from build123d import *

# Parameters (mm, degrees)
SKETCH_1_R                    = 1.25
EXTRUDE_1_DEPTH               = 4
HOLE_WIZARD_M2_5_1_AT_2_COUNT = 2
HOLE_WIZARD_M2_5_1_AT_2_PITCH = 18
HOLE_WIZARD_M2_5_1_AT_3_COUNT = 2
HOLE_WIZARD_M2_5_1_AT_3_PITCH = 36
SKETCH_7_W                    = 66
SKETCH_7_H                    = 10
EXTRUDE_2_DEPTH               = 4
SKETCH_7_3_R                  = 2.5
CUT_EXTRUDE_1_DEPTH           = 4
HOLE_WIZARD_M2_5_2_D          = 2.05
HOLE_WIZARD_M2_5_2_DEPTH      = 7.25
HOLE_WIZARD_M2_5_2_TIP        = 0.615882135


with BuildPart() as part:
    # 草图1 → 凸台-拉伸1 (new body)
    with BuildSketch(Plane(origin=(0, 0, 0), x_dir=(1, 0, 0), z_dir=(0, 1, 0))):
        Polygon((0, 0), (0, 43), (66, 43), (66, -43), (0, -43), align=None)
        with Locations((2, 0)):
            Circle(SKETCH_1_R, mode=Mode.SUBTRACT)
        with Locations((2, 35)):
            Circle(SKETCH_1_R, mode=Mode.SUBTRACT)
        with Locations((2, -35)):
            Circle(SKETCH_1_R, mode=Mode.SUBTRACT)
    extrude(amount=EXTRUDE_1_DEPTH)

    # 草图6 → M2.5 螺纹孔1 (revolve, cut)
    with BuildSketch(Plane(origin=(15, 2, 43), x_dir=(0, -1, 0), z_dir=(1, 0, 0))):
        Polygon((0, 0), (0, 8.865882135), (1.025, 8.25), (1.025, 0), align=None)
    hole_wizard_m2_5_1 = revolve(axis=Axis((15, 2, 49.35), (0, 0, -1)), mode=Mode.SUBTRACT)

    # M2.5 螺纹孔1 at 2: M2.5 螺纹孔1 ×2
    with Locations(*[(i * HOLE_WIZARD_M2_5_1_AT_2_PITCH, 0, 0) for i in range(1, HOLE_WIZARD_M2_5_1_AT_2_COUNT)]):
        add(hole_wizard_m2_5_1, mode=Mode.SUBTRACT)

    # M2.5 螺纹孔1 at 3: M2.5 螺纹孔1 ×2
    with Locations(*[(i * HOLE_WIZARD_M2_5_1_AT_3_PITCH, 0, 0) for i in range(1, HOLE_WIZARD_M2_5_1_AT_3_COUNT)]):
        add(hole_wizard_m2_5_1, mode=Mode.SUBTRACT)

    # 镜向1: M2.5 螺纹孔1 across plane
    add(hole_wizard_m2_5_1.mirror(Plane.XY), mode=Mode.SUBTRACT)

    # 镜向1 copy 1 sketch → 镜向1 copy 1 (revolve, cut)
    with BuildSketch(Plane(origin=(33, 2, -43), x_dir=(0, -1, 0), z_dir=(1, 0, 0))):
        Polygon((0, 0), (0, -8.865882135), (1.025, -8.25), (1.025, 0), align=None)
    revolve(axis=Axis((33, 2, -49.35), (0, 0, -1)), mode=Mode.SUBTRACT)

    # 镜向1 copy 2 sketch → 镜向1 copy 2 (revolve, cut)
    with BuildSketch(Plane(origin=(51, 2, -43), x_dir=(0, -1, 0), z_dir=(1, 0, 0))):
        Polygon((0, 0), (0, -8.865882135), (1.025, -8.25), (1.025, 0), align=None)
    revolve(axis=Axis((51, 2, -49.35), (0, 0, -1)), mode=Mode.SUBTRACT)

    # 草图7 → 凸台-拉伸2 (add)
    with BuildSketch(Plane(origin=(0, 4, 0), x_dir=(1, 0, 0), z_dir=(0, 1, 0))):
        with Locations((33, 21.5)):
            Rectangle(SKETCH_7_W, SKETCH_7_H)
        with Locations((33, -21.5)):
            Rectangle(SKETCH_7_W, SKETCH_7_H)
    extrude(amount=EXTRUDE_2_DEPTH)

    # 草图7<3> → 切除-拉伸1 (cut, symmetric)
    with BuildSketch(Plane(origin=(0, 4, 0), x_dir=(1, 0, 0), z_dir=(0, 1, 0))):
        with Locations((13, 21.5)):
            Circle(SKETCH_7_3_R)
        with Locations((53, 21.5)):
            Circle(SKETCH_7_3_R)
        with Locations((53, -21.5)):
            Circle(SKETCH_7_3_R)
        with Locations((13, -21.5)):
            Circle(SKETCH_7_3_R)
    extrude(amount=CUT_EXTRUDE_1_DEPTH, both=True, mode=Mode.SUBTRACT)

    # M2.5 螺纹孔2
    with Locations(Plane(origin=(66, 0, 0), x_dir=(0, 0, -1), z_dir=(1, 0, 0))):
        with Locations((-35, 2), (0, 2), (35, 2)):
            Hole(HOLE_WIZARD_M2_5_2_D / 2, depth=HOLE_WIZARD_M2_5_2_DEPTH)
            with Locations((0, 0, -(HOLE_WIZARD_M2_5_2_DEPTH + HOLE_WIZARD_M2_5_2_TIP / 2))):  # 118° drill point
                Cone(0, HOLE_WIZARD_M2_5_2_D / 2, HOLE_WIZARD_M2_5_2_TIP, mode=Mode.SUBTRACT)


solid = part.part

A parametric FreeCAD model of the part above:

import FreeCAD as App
import Part
import Sketcher
Q = App.Units.Quantity


def add_polygon(sketch, points):
    """Adds a closed chain of lines whose ends are joined by coincident constraints."""
    first, n = sketch.GeometryCount, len(points)
    for a, b in zip(points, points[1:] + points[:1]):
        sketch.addGeometry(Part.LineSegment(App.Vector(*a, 0), App.Vector(*b, 0)), False)
    for i in range(n):
        sketch.addConstraint(Sketcher.Constraint("Coincident", first + i, 2, first + (i + 1) % n, 1))

doc = App.newDocument("Part")
body = doc.addObject("PartDesign::Body", "Body")

# Sketch on XZ plane
sketch1 = doc.addObject("Sketcher::SketchObject", "Sketch")
body.addObject(sketch1)
sketch1.AttachmentSupport = (doc.XZ_Plane, [""])
sketch1.MapMode = "FlatFace"
add_polygon(sketch1, [(0, -43), (0, 43), (66, 43), (66, -43)])  # lines 0-3
sketch1.addGeometry(Part.Circle(App.Vector(2, 35, 0), App.Vector(0, 0, 1), 1.2), False)  # 4
sketch1.addGeometry(Part.Circle(App.Vector(2, 0, 0), App.Vector(0, 0, 1), 1.2), False)  # 5
sketch1.addGeometry(Part.Circle(App.Vector(2, -35, 0), App.Vector(0, 0, 1), 1.2), False)  # 6
sketch1.addConstraint(Sketcher.Constraint("Vertical", 0))
sketch1.addConstraint(Sketcher.Constraint("Horizontal", 1))
sketch1.addConstraint(Sketcher.Constraint("Vertical", 2))
sketch1.addConstraint(Sketcher.Constraint("Horizontal", 3))
sketch1.addConstraint(Sketcher.Constraint("Equal", 4, 5))
sketch1.addConstraint(Sketcher.Constraint("Equal", 5, 6))
sketch1.addConstraint(Sketcher.Constraint("Symmetric", 0, 2, 3, 2, -1, 1))
sketch1.addConstraint(Sketcher.Constraint("Symmetric", 4, 3, 6, 3, -1))
sketch1.addConstraint(Sketcher.Constraint("PointOnObject", 5, 3, -1))
sketch1.addConstraint(Sketcher.Constraint("Vertical", 4, 3, 5, 3))
sketch1.addConstraint(Sketcher.Constraint("Diameter", 4, Q("2.5 mm")))
sketch1.addConstraint(Sketcher.Constraint("DistanceX", 1, 1, 1, 2, Q("66 mm")))
sketch1.addConstraint(Sketcher.Constraint("DistanceY", 0, 1, 0, 2, Q("86 mm")))
sketch1.addConstraint(Sketcher.Constraint("DistanceX", -1, 1, 4, 3, Q("2 mm")))
sketch1.addConstraint(Sketcher.Constraint("DistanceY", -1, 1, 4, 3, Q("35 mm")))
pad1 = doc.addObject("PartDesign::Pad", "Pad")
body.addObject(pad1)
pad1.Profile = sketch1
pad1.Length = 4
pad1.Reversed = True

# Sketch on YZ plane
sketch2 = doc.addObject("Sketcher::SketchObject", "Sketch001")
body.addObject(sketch2)
sketch2.AttachmentSupport = (doc.YZ_Plane, [""])
sketch2.MapMode = "FlatFace"
sketch2.AttachmentOffset = App.Placement(App.Vector(0, 0, 15), App.Rotation())
add_polygon(sketch2, [(2, 34.1), (2, 43), (1, 43), (1, 34.8)])  # lines 0-3
sketch2.addGeometry(Part.LineSegment(App.Vector(2, 43, 0), App.Vector(2, 34.1, 0)), True)  # axis
sketch2.addConstraint(Sketcher.Constraint("Vertical", 0))
sketch2.addConstraint(Sketcher.Constraint("Horizontal", 1))
sketch2.addConstraint(Sketcher.Constraint("Vertical", 2))
sketch2.addConstraint(Sketcher.Constraint("Vertical", 4))
sketch2.addConstraint(Sketcher.Constraint("Coincident", 4, 1, 0, 2))
sketch2.addConstraint(Sketcher.Constraint("Equal", 0, 4))
sketch2.addConstraint(Sketcher.Constraint("Angle", 3, Q("-31 deg")))
sketch2.addConstraint(Sketcher.Constraint("DistanceX", -1, 1, 0, 2, Q("2 mm")))
sketch2.addConstraint(Sketcher.Constraint("DistanceY", -1, 1, 0, 2, Q("43 mm")))
sketch2.addConstraint(Sketcher.Constraint("DistanceY", 2, 2, 2, 1, Q("8.25 mm")))
sketch2.addConstraint(Sketcher.Constraint("DistanceX", 1, 2, 1, 1, Q("1.025 mm")))
groove = doc.addObject("PartDesign::Groove", "Groove")
body.addObject(groove)
groove.Profile = sketch2
groove.ReferenceAxis = (sketch2, ["Axis0"])
groove.Angle = 360
doc.recompute()

linearpattern = doc.addObject("PartDesign::LinearPattern", "LinearPattern")
body.addObject(linearpattern)
linearpattern.Originals = [groove]
linearpattern.Direction = (doc.X_Axis, [""])
linearpattern.Mode = "offset"
linearpattern.Offset = 18
linearpattern.Occurrences = 2
body.Tip = linearpattern
doc.recompute()

linearpattern2 = doc.addObject("PartDesign::LinearPattern", "LinearPattern001")
body.addObject(linearpattern2)
linearpattern2.Originals = [groove]
linearpattern2.Direction = (doc.X_Axis, [""])
linearpattern2.Mode = "offset"
linearpattern2.Offset = 36
linearpattern2.Occurrences = 2
body.Tip = linearpattern2
doc.recompute()

mirrored = doc.addObject("PartDesign::Mirrored", "Mirrored")
body.addObject(mirrored)
mirrored.Originals = [groove]
mirrored.MirrorPlane = (doc.XY_Plane, [""])
body.Tip = mirrored

# Sketch on YZ plane
sketch3 = doc.addObject("Sketcher::SketchObject", "Sketch002")
body.addObject(sketch3)
sketch3.AttachmentSupport = (doc.YZ_Plane, [""])
sketch3.MapMode = "FlatFace"
sketch3.AttachmentOffset = App.Placement(App.Vector(0, 0, 33), App.Rotation())
add_polygon(sketch3, [(2, -43), (2, -34.1), (1, -34.8), (1, -43)])  # lines 0-3
sketch3.addGeometry(Part.LineSegment(App.Vector(2, -34.1, 0), App.Vector(2, -43, 0)), True)  # axis
sketch3.addConstraint(Sketcher.Constraint("Vertical", 0))
sketch3.addConstraint(Sketcher.Constraint("Vertical", 2))
sketch3.addConstraint(Sketcher.Constraint("Horizontal", 3))
sketch3.addConstraint(Sketcher.Constraint("Vertical", 4))
sketch3.addConstraint(Sketcher.Constraint("Coincident", 4, 1, 0, 2))
sketch3.addConstraint(Sketcher.Constraint("Horizontal", 2, 2, 4, 2))
sketch3.addConstraint(Sketcher.Constraint("Angle", 1, Q("-149 deg")))
sketch3.addConstraint(Sketcher.Constraint("DistanceX", -1, 1, 0, 2, Q("2 mm")))
sketch3.addConstraint(Sketcher.Constraint("DistanceY", 2, 2, -1, 1, Q("43 mm")))
sketch3.addConstraint(Sketcher.Constraint("DistanceY", 2, 2, 2, 1, Q("8.25 mm")))
sketch3.addConstraint(Sketcher.Constraint("DistanceX", 3, 1, 3, 2, Q("1.025 mm")))
groove2 = doc.addObject("PartDesign::Groove", "Groove001")
body.addObject(groove2)
groove2.Profile = sketch3
groove2.ReferenceAxis = (sketch3, ["Axis0"])
groove2.Angle = 360

# Sketch on YZ plane
sketch4 = doc.addObject("Sketcher::SketchObject", "Sketch003")
body.addObject(sketch4)
sketch4.AttachmentSupport = (doc.YZ_Plane, [""])
sketch4.MapMode = "FlatFace"
sketch4.AttachmentOffset = App.Placement(App.Vector(0, 0, 51), App.Rotation())
add_polygon(sketch4, [(2, -43), (2, -34.1), (1, -34.8), (1, -43)])  # lines 0-3
sketch4.addGeometry(Part.LineSegment(App.Vector(2, -34.1, 0), App.Vector(2, -43, 0)), True)  # axis
sketch4.addConstraint(Sketcher.Constraint("Vertical", 0))
sketch4.addConstraint(Sketcher.Constraint("Vertical", 2))
sketch4.addConstraint(Sketcher.Constraint("Horizontal", 3))
sketch4.addConstraint(Sketcher.Constraint("Vertical", 4))
sketch4.addConstraint(Sketcher.Constraint("Coincident", 4, 1, 0, 2))
sketch4.addConstraint(Sketcher.Constraint("Horizontal", 2, 2, 4, 2))
sketch4.addConstraint(Sketcher.Constraint("Angle", 1, Q("-149 deg")))
sketch4.addConstraint(Sketcher.Constraint("DistanceX", -1, 1, 0, 2, Q("2 mm")))
sketch4.addConstraint(Sketcher.Constraint("DistanceY", 2, 2, -1, 1, Q("43 mm")))
sketch4.addConstraint(Sketcher.Constraint("DistanceY", 2, 2, 2, 1, Q("8.25 mm")))
sketch4.addConstraint(Sketcher.Constraint("DistanceX", 3, 1, 3, 2, Q("1.025 mm")))
groove3 = doc.addObject("PartDesign::Groove", "Groove002")
body.addObject(groove3)
groove3.Profile = sketch4
groove3.ReferenceAxis = (sketch4, ["Axis0"])
groove3.Angle = 360

# Sketch on XZ plane
sketch5 = doc.addObject("Sketcher::SketchObject", "Sketch004")
body.addObject(sketch5)
sketch5.AttachmentSupport = (doc.XZ_Plane, [""])
sketch5.MapMode = "FlatFace"
sketch5.AttachmentOffset = App.Placement(App.Vector(0, 0, -4), App.Rotation())
add_polygon(sketch5, [(0, -26), (0, -16), (66, -16), (66, -26)])  # lines 0-3
add_polygon(sketch5, [(0, 16), (0, 26), (66, 26), (66, 16)])  # lines 4-7
sketch5.addConstraint(Sketcher.Constraint("Vertical", 0))
sketch5.addConstraint(Sketcher.Constraint("Horizontal", 1))
sketch5.addConstraint(Sketcher.Constraint("Vertical", 2))
sketch5.addConstraint(Sketcher.Constraint("Horizontal", 3))
sketch5.addConstraint(Sketcher.Constraint("Vertical", 4))
sketch5.addConstraint(Sketcher.Constraint("Horizontal", 5))
sketch5.addConstraint(Sketcher.Constraint("Vertical", 6))
sketch5.addConstraint(Sketcher.Constraint("Horizontal", 7))
sketch5.addConstraint(Sketcher.Constraint("Symmetric", 3, 2, 4, 2, -1, 1))
sketch5.addConstraint(Sketcher.Constraint("Symmetric", 1, 2, 6, 2, -1))
sketch5.addConstraint(Sketcher.Constraint("PointOnObject", 0, 2, -2))
sketch5.addConstraint(Sketcher.Constraint("DistanceX", 1, 1, 1, 2, Q("66 mm")))
sketch5.addConstraint(Sketcher.Constraint("DistanceY", 0, 1, 0, 2, Q("10 mm")))
sketch5.addConstraint(Sketcher.Constraint("DistanceY", 0, 2, 4, 2, Q("43 mm")))
pad2 = doc.addObject("PartDesign::Pad", "Pad001")
body.addObject(pad2)
pad2.Profile = sketch5
pad2.Length = 4
pad2.Reversed = True

# Sketch on XZ plane
sketch6 = doc.addObject("Sketcher::SketchObject", "Sketch005")
body.addObject(sketch6)
sketch6.AttachmentSupport = (doc.XZ_Plane, [""])
sketch6.MapMode = "FlatFace"
sketch6.AttachmentOffset = App.Placement(App.Vector(0, 0, -4), App.Rotation())
sketch6.addGeometry(Part.Circle(App.Vector(13, -21.5, 0), App.Vector(0, 0, 1), 2.5), False)
sketch6.addGeometry(Part.Circle(App.Vector(53, -21.5, 0), App.Vector(0, 0, 1), 2.5), False)
sketch6.addGeometry(Part.Circle(App.Vector(53, 21.5, 0), App.Vector(0, 0, 1), 2.5), False)
sketch6.addGeometry(Part.Circle(App.Vector(13, 21.5, 0), App.Vector(0, 0, 1), 2.5), False)
sketch6.addConstraint(Sketcher.Constraint("Equal", 0, 1))
sketch6.addConstraint(Sketcher.Constraint("Equal", 1, 2))
sketch6.addConstraint(Sketcher.Constraint("Equal", 2, 3))
sketch6.addConstraint(Sketcher.Constraint("Symmetric", 1, 3, 2, 3, -1))
sketch6.addConstraint(Sketcher.Constraint("Symmetric", 0, 3, 3, 3, -1))
sketch6.addConstraint(Sketcher.Constraint("Horizontal", 0, 3, 1, 3))
sketch6.addConstraint(Sketcher.Constraint("Diameter", 0, Q("5 mm")))
sketch6.addConstraint(Sketcher.Constraint("DistanceX", -1, 1, 0, 3, Q("13 mm")))
sketch6.addConstraint(Sketcher.Constraint("DistanceX", -1, 1, 1, 3, Q("53 mm")))
sketch6.addConstraint(Sketcher.Constraint("DistanceY", 1, 3, 2, 3, Q("43 mm")))
pocket1 = doc.addObject("PartDesign::Pocket", "Pocket")
body.addObject(pocket1)
pocket1.Profile = sketch6
pocket1.Length = 8
pocket1.Midplane = True

# Sketch on YZ plane
sketch7 = doc.addObject("Sketcher::SketchObject", "Sketch006")
body.addObject(sketch7)
sketch7.AttachmentSupport = (doc.YZ_Plane, [""])
sketch7.MapMode = "FlatFace"
sketch7.AttachmentOffset = App.Placement(App.Vector(0, 0, 66), App.Rotation())
sketch7.addGeometry(Part.Circle(App.Vector(2, 35, 0), App.Vector(0, 0, 1), 1), False)
sketch7.addGeometry(Part.Circle(App.Vector(2, 0, 0), App.Vector(0, 0, 1), 1), False)
sketch7.addGeometry(Part.Circle(App.Vector(2, -35, 0), App.Vector(0, 0, 1), 1), False)
sketch7.addConstraint(Sketcher.Constraint("Equal", 0, 1))
sketch7.addConstraint(Sketcher.Constraint("Equal", 1, 2))
sketch7.addConstraint(Sketcher.Constraint("Symmetric", 0, 3, 2, 3, -1))
sketch7.addConstraint(Sketcher.Constraint("PointOnObject", 1, 3, -1))
sketch7.addConstraint(Sketcher.Constraint("Vertical", 0, 3, 1, 3))
sketch7.addConstraint(Sketcher.Constraint("Diameter", 0, Q("2.05 mm")))
sketch7.addConstraint(Sketcher.Constraint("DistanceX", -1, 1, 0, 3, Q("2 mm")))
sketch7.addConstraint(Sketcher.Constraint("DistanceY", -1, 1, 0, 3, Q("35 mm")))
doc.recompute()
hole = doc.addObject("PartDesign::Hole", "Hole")
body.addObject(hole)
hole.Profile = sketch7
hole.ThreadType = "None"
hole.Diameter = 2.05
hole.DepthType = "Dimension"
hole.Depth = 7.25
hole.DrillPoint = "Angled"
hole.DrillPointAngle = 118

doc.recompute()
